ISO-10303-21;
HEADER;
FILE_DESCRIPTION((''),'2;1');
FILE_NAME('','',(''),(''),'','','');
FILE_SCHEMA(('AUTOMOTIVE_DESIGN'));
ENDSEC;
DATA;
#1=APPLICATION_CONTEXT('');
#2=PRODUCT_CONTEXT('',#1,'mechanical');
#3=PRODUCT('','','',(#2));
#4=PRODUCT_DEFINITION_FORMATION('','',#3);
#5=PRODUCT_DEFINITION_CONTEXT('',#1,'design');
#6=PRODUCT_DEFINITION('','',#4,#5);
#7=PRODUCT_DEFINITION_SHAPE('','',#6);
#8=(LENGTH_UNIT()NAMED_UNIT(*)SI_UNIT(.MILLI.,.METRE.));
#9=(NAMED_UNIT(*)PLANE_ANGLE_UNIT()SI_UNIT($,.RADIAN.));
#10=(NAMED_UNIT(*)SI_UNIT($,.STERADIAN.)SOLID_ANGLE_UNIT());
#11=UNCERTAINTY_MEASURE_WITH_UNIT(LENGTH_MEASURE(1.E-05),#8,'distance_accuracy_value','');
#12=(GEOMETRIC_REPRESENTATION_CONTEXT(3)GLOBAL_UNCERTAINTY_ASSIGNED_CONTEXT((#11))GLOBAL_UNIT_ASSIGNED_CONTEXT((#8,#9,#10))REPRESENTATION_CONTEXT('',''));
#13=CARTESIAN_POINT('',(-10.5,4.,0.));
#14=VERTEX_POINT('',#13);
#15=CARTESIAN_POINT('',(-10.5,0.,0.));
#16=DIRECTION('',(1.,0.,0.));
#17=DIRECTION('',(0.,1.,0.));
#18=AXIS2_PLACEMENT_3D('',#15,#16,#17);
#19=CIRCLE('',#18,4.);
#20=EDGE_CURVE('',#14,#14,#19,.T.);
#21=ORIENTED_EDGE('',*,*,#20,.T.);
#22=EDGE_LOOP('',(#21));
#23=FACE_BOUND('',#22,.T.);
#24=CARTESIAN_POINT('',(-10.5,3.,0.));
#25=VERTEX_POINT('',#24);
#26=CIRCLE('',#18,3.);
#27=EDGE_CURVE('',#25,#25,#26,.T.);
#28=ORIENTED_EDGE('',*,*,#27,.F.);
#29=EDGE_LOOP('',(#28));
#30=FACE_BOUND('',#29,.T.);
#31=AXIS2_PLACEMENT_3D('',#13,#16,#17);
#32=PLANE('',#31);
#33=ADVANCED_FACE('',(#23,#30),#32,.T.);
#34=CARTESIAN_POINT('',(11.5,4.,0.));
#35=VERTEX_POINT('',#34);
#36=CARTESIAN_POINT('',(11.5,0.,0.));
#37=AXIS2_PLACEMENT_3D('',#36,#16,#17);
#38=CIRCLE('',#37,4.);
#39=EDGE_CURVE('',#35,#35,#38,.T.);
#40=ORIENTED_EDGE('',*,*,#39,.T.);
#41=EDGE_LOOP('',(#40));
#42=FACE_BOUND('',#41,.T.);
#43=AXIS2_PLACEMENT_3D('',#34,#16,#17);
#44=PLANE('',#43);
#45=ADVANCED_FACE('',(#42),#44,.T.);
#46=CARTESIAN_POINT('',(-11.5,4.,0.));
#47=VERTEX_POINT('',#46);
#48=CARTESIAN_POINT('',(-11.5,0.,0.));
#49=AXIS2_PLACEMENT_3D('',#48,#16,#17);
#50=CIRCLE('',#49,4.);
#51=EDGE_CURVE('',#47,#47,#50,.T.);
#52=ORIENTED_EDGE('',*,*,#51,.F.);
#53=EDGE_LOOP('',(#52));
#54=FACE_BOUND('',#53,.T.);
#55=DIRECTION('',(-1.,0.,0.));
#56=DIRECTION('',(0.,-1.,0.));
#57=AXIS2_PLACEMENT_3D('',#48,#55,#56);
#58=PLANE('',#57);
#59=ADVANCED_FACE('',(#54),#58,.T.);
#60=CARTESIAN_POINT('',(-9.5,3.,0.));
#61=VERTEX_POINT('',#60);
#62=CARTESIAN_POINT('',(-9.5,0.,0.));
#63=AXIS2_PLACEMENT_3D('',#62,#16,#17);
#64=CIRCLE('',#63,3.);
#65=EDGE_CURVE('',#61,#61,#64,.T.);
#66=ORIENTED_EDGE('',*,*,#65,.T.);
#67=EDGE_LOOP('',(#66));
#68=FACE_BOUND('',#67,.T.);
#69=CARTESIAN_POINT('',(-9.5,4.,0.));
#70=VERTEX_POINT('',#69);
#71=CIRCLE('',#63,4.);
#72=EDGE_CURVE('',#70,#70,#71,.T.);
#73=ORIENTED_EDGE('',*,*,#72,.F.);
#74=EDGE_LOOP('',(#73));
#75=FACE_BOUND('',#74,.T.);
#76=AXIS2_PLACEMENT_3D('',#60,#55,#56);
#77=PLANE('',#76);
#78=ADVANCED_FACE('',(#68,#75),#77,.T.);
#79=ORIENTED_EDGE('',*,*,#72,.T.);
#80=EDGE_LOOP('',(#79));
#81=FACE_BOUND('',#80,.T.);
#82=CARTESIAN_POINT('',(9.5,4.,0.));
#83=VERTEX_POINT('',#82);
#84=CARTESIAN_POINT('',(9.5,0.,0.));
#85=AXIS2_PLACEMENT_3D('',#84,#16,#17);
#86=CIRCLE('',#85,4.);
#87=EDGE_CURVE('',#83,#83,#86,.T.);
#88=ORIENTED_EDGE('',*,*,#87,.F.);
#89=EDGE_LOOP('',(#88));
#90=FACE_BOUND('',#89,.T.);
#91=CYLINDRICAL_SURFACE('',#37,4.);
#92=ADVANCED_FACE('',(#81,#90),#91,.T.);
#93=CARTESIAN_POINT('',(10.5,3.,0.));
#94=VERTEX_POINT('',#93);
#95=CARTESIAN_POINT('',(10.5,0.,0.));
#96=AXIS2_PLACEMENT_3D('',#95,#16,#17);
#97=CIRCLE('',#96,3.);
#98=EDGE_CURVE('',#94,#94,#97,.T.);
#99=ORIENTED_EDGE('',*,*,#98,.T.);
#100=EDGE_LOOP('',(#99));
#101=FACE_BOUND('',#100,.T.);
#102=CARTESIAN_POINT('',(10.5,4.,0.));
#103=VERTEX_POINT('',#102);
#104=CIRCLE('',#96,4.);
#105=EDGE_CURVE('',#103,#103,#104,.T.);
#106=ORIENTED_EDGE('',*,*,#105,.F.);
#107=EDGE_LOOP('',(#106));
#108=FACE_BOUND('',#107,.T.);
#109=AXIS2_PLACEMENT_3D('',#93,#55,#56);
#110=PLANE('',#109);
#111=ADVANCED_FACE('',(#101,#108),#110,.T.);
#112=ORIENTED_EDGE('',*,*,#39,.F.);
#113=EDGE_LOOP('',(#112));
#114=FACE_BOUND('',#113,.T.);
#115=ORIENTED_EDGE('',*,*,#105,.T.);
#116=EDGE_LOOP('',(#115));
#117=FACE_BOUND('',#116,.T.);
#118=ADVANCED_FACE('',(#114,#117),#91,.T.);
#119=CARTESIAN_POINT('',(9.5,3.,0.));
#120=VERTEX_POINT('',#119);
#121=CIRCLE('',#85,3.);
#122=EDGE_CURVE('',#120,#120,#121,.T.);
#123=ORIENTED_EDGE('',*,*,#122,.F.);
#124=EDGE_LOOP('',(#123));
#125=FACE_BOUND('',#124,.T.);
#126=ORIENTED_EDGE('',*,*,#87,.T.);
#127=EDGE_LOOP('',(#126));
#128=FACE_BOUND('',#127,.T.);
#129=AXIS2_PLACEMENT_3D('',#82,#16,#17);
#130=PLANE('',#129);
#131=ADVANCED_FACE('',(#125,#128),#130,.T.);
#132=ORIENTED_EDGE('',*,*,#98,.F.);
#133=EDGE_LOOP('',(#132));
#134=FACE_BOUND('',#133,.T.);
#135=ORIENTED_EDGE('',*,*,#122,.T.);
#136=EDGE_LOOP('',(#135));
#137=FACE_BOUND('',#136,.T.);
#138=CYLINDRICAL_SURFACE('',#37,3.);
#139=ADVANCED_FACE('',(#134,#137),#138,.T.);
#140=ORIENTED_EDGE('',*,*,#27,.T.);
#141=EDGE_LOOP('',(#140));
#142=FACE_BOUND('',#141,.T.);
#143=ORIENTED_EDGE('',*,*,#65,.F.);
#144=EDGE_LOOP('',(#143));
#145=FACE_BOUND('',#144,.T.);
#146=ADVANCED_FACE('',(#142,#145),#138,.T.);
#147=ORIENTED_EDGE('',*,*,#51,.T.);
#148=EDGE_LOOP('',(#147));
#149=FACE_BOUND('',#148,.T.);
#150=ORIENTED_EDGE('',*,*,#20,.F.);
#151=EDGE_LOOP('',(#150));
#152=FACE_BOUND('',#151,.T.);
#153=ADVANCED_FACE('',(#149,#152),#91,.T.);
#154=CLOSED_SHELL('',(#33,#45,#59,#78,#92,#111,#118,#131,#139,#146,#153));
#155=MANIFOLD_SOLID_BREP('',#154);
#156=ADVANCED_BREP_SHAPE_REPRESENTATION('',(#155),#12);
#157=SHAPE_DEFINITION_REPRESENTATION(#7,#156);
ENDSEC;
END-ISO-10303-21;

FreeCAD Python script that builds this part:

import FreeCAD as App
import Part
import Sketcher


def add_polygon(sketch, points):
    """Adds a closed chain of lines whose ends are joined by coincident constraints."""
    first, n = sketch.GeometryCount, len(points)
    for a, b in zip(points, points[1:] + points[:1]):
        sketch.addGeometry(Part.LineSegment(App.Vector(*a, 0), App.Vector(*b, 0)), False)
    for i in range(n):
        sketch.addConstraint(Sketcher.Constraint("Coincident", first + i, 2, first + (i + 1) % n, 1))

doc = App.newDocument("Part")
body = doc.addObject("PartDesign::Body", "Body")

# Sketch on XY plane
sketch1 = doc.addObject("Sketcher::SketchObject", "Sketch")
body.addObject(sketch1)
sketch1.AttachmentSupport = (doc.XY_Plane, [""])
sketch1.MapMode = "FlatFace"
add_polygon(sketch1, [(-11.5, 4), (-11.5, 0), (11.5, 0), (11.5, 4), (10.5, 4), (10.5, 3), (9.5, 3), (9.5, 4), (-9.5, 4), (-9.5, 3), (-10.5, 3), (-10.5, 4)])  # lines 0-11
sketch1.addConstraint([
    Sketcher.Constraint("Vertical", 0),
    Sketcher.Constraint("Horizontal", 1),
    Sketcher.Constraint("Vertical", 2),
    Sketcher.Constraint("Horizontal", 3),
    Sketcher.Constraint("Vertical", 4),
    Sketcher.Constraint("Horizontal", 5),
    Sketcher.Constraint("Vertical", 6),
    Sketcher.Constraint("Horizontal", 7),
    Sketcher.Constraint("Vertical", 8),
    Sketcher.Constraint("Horizontal", 9),
    Sketcher.Constraint("Vertical", 10),
    Sketcher.Constraint("Horizontal", 11),
    Sketcher.Constraint("Symmetric", 0, 2, 1, 2, -1, 1),
    Sketcher.Constraint("Symmetric", 5, 2, 8, 2, -2),
    Sketcher.Constraint("Symmetric", 3, 2, 10, 2, -2),
    Sketcher.Constraint("Horizontal", 3, 2, 6, 2),
    Sketcher.Constraint("Equal", 3, 5),
    Sketcher.Constraint("Equal", 11, 4),
    Sketcher.Constraint("DistanceX", 1, 1, 1, 2, 23.0),
    Sketcher.Constraint("DistanceX", 3, 2, 3, 1, 1.0),
    Sketcher.Constraint("DistanceY", 0, 2, 0, 1, 4.0),
])
revolution = doc.addObject("PartDesign::Revolution", "Revolution")
body.addObject(revolution)
revolution.Profile = sketch1
revolution.ReferenceAxis = (sketch1, ["H_Axis"])
revolution.Angle = 360

doc.recompute()
